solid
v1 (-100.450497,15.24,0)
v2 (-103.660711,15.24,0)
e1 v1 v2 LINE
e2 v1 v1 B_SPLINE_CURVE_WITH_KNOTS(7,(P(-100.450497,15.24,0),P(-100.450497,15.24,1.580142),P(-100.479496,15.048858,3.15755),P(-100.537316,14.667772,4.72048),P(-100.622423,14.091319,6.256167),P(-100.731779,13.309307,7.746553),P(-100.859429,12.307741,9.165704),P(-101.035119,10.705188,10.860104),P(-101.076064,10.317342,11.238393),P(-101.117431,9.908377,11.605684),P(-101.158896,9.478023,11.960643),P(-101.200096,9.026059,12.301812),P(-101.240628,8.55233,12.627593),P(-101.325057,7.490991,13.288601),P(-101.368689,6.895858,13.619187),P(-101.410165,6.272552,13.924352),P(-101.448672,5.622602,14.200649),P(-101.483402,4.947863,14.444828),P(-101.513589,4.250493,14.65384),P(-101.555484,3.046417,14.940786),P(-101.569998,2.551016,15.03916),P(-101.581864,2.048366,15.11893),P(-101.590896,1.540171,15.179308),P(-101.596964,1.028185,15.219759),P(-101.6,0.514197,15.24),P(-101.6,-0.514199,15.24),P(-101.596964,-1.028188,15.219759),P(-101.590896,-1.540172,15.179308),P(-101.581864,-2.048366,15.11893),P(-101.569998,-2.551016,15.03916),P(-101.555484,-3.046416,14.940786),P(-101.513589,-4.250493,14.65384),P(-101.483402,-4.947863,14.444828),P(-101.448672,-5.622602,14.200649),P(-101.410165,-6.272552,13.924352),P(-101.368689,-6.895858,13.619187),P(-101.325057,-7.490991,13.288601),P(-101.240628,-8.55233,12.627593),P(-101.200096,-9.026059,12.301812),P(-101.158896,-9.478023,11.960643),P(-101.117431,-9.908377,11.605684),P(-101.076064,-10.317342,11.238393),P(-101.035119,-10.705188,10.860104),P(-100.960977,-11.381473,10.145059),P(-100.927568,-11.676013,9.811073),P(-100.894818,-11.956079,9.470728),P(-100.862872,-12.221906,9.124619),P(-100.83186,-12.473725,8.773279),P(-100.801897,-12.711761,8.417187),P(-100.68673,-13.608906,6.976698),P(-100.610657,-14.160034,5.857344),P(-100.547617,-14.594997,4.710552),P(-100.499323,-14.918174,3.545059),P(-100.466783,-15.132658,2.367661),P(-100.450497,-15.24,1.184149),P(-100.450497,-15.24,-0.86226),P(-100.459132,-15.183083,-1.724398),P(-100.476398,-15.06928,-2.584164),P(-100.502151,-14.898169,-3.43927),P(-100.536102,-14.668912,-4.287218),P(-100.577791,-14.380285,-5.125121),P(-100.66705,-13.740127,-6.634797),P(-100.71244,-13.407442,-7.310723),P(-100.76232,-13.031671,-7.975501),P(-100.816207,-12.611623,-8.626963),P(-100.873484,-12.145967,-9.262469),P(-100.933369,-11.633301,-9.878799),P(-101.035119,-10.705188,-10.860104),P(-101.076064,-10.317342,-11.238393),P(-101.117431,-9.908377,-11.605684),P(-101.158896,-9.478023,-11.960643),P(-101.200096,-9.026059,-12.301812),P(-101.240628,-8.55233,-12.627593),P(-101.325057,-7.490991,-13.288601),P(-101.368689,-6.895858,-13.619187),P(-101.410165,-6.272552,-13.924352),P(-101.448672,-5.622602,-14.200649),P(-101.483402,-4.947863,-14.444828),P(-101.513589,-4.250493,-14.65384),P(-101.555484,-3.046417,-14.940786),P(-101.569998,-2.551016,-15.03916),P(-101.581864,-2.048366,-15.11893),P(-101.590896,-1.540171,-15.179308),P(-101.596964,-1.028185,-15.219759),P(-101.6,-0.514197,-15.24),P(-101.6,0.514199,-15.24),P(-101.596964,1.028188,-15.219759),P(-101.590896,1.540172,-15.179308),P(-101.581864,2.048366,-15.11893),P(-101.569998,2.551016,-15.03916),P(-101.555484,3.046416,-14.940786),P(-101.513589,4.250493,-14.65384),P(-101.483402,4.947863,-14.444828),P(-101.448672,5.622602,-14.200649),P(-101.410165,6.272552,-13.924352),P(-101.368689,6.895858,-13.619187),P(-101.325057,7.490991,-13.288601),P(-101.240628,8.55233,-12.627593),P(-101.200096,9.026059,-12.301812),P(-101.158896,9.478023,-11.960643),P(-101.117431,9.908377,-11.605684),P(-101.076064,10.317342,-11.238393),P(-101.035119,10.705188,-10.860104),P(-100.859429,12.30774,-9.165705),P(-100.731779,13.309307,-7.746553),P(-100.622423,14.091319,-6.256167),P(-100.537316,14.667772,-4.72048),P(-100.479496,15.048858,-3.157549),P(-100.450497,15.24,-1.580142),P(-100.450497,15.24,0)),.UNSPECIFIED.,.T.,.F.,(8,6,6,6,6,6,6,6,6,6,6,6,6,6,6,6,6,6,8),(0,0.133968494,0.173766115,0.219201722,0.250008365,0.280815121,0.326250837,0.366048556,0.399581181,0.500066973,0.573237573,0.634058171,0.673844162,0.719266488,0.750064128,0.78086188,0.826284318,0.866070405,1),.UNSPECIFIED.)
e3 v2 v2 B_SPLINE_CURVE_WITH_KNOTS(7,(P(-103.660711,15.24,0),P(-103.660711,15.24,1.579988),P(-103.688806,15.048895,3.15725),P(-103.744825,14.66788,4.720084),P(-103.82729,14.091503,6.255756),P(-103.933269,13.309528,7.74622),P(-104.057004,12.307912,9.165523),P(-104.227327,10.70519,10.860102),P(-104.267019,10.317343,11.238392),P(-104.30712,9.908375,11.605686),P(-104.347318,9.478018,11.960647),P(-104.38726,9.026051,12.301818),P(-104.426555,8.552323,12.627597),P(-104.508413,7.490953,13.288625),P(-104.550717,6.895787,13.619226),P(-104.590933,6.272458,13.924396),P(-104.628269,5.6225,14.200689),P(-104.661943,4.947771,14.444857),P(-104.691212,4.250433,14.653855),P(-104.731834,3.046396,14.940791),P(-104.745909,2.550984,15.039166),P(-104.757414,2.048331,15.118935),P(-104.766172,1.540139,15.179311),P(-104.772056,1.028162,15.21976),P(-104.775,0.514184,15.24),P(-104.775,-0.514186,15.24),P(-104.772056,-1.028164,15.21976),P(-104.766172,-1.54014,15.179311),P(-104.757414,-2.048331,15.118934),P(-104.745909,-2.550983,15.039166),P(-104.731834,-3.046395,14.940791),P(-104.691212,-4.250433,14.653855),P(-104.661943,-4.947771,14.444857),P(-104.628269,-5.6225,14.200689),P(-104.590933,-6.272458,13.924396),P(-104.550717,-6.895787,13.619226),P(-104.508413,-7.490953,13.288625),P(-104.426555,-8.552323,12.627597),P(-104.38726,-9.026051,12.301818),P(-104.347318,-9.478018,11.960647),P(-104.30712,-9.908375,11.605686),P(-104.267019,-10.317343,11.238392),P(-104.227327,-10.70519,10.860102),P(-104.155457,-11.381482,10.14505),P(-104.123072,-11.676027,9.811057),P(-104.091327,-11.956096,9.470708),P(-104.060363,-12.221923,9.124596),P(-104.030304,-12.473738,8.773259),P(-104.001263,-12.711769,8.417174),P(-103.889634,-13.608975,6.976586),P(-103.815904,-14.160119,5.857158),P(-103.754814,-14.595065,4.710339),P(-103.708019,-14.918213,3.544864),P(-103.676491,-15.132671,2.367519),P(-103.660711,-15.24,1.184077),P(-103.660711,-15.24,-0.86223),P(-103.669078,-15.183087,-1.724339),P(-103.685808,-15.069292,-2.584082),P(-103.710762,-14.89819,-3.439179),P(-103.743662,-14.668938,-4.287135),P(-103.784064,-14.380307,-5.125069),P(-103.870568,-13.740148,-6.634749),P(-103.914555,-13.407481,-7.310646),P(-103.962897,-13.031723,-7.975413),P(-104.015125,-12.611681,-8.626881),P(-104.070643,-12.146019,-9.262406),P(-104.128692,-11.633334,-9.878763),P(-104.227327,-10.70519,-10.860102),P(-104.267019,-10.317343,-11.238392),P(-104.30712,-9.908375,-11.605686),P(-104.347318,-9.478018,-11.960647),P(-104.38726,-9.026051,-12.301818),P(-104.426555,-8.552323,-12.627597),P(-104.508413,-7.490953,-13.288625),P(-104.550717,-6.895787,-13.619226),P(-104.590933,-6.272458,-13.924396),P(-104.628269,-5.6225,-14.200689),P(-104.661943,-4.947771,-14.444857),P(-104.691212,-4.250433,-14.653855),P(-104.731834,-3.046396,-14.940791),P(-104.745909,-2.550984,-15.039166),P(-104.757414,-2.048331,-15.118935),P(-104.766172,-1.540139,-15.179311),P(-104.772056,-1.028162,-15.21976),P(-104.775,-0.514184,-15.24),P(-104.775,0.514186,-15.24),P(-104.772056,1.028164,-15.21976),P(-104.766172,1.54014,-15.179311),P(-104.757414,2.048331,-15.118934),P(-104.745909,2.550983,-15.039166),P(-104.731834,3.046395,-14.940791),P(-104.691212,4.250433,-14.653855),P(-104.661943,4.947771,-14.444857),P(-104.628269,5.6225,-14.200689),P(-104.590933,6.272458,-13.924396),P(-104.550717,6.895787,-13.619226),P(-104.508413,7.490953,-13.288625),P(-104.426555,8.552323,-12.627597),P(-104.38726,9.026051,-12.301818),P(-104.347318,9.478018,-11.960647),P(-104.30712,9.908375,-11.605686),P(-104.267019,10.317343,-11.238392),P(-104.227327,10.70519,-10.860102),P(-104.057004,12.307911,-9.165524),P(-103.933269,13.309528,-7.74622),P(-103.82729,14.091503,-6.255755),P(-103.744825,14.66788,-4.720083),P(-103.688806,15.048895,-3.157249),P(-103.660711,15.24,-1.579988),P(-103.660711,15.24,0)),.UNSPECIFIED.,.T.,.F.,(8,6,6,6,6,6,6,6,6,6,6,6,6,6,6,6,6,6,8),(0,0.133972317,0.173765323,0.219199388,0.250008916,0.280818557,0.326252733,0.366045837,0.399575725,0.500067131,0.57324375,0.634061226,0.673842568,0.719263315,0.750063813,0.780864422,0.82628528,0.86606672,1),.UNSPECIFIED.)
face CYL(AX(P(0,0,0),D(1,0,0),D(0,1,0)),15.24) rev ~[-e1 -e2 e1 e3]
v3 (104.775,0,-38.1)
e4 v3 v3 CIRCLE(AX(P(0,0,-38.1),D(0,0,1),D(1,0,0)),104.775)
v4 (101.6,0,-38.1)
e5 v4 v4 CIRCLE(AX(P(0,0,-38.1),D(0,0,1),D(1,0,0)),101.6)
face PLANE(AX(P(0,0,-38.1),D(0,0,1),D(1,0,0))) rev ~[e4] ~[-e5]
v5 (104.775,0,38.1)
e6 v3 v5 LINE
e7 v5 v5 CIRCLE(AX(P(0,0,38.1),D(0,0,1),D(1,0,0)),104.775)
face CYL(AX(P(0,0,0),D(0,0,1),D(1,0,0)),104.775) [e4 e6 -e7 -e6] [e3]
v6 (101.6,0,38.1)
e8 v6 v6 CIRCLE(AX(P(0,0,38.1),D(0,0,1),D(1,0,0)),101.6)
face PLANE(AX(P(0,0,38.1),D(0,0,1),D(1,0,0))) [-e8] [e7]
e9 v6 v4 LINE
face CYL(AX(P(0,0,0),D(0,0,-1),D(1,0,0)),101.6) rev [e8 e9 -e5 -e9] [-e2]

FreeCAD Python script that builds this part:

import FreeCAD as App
import Part
import Sketcher
Q = App.Units.Quantity

doc = App.newDocument("Part")
body = doc.addObject("PartDesign::Body", "Body")

# Sketch on XY plane
sketch1 = body.newObject("Sketcher::SketchObject", "Sketch")
sketch1.AttachmentSupport = (doc.getObject("XY_Plane"), [""])
sketch1.MapMode = "FlatFace"
sketch1.addGeometry(Part.Circle(App.Vector(0, 0, 0), App.Vector(0, 0, 1), 105), False)
sketch1.addGeometry(Part.Circle(App.Vector(0, 0, 0), App.Vector(0, 0, 1), 102), False)
sketch1.addConstraint(Sketcher.Constraint("Coincident", 0, 3, -1, 1))
sketch1.addConstraint(Sketcher.Constraint("Coincident", 1, 3, -1, 1))
sketch1.addConstraint(Sketcher.Constraint("Diameter", 1, Q("8 in")))
sketch1.addConstraint(Sketcher.Constraint("Diameter", 0, Q("8.25 in")))
pad1 = body.newObject("PartDesign::Pad", "Pad")
pad1.Profile = sketch1
pad1.Length = Q("3 in")
pad1.Midplane = True

# Sketch on YZ plane
sketch2 = body.newObject("Sketcher::SketchObject", "Sketch001")
sketch2.AttachmentSupport = (doc.getObject("YZ_Plane"), [""])
sketch2.MapMode = "FlatFace"
sketch2.addGeometry(Part.Circle(App.Vector(0, 0, 0), App.Vector(0, 0, 1), 15), False)
sketch2.addConstraint(Sketcher.Constraint("Coincident", 0, 3, -1, 1))
sketch2.addConstraint(Sketcher.Constraint("Diameter", 0, Q("1.2 in")))
pocket1 = body.newObject("PartDesign::Pocket", "Pocket")
pocket1.Profile = sketch2
pocket1.Type = "ThroughAll"

doc.recompute()
